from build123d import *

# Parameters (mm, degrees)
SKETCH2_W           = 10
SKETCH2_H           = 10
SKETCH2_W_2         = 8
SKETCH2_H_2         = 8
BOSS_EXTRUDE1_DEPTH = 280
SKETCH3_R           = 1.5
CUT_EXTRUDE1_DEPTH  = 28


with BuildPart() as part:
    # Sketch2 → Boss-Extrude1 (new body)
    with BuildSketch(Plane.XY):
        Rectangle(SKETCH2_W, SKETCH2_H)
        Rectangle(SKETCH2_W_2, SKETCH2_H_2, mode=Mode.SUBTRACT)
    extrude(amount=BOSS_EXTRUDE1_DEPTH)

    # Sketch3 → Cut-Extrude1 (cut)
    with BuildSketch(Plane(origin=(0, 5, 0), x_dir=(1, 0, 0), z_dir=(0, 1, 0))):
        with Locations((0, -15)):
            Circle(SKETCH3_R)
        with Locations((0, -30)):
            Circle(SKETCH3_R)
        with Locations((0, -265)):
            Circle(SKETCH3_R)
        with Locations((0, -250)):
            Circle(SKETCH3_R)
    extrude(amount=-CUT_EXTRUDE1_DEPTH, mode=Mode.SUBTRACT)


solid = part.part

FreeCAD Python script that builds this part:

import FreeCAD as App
import Part
import Sketcher
from FreeCAD import Vector
Q = App.Units.Quantity


def add_polygon(sketch, points):
    """Adds a closed chain of lines whose ends are joined by coincident constraints."""
    first, n = sketch.GeometryCount, len(points)
    for a, b in zip(points, points[1:] + points[:1]):
        sketch.addGeometry(Part.LineSegment(App.Vector(*a, 0), App.Vector(*b, 0)), False)
    for i in range(n):
        sketch.addConstraint(Sketcher.Constraint("Coincident", first + i, 2, first + (i + 1) % n, 1))

doc = App.newDocument("Part")
body = doc.addObject("PartDesign::Body", "Body")

sketch1 = body.newObject("Sketcher::SketchObject", "Sketch")
sketch1.AttachmentSupport = (doc.getObject("XY_Plane"), [""])
sketch1.MapMode = "FlatFace"
add_polygon(sketch1, [(-5, 5), (-5, -5), (5, -5), (5, 5)])
add_polygon(sketch1, [(4, -4), (-4, -4), (-4, 4), (4, 4)])
sketch1.addConstraint([
    Sketcher.Constraint("Vertical", 0),
    Sketcher.Constraint("Horizontal", 1),
    Sketcher.Constraint("Vertical", 2),
    Sketcher.Constraint("Horizontal", 3),
    Sketcher.Constraint("Horizontal", 4),
    Sketcher.Constraint("Vertical", 5),
    Sketcher.Constraint("Horizontal", 6),
    Sketcher.Constraint("Vertical", 7),
    Sketcher.Constraint("Symmetric", 0, 2, 2, 2, -1, 1),
    Sketcher.Constraint("Symmetric", 4, 2, 6, 2, -1, 1),
    Sketcher.Constraint("Equal", 3, 0),
    Sketcher.Constraint("Equal", 6, 5),
    Sketcher.Constraint("DistanceX", 1, 1, 1, 2, Q("10 mm")),
    Sketcher.Constraint("DistanceX", 4, 2, 4, 1, Q("8 mm")),
])
pad1 = body.newObject("PartDesign::Pad", "Pad")
pad1.Profile = sketch1
pad1.Length = 280

sketch2 = body.newObject("Sketcher::SketchObject", "Sketch001")
sketch2.AttachmentSupport = (doc.getObject("XZ_Plane"), [""])
sketch2.MapMode = "FlatFace"
sketch2.AttachmentOffset = App.Placement(Vector(0, 0, -5), App.Rotation())
sketch2.addGeometry([
    Part.Circle(Vector(0, 15, 0), Vector(0, 0, 1), 1.5),
    Part.Circle(Vector(0, 30, 0), Vector(0, 0, 1), 1.5),
    Part.Circle(Vector(0, 265, 0), Vector(0, 0, 1), 1.5),
    Part.Circle(Vector(0, 250, 0), Vector(0, 0, 1), 1.5),
], False)
sketch2.addConstraint([
    Sketcher.Constraint("Equal", 0, 1),
    Sketcher.Constraint("Equal", 1, 2),
    Sketcher.Constraint("Equal", 2, 3),
    Sketcher.Constraint("PointOnObject", 0, 3, -2),
    Sketcher.Constraint("PointOnObject", 1, 3, -2),
    Sketcher.Constraint("PointOnObject", 2, 3, -2),
    Sketcher.Constraint("PointOnObject", 3, 3, -2),
    Sketcher.Constraint("Diameter", 0, Q("3 mm")),
    Sketcher.Constraint("DistanceY", -1, 1, 0, 3, Q("15 mm")),
    Sketcher.Constraint("DistanceY", -1, 1, 1, 3, Q("30 mm")),
    Sketcher.Constraint("DistanceY", -1, 1, 2, 3, Q("265 mm")),
    Sketcher.Constraint("DistanceY", -1, 1, 3, 3, Q("250 mm")),
])
pocket1 = body.newObject("PartDesign::Pocket", "Pocket")
pocket1.Profile = sketch2
pocket1.Length = 28
pocket1.Reversed = True

doc.recompute()
